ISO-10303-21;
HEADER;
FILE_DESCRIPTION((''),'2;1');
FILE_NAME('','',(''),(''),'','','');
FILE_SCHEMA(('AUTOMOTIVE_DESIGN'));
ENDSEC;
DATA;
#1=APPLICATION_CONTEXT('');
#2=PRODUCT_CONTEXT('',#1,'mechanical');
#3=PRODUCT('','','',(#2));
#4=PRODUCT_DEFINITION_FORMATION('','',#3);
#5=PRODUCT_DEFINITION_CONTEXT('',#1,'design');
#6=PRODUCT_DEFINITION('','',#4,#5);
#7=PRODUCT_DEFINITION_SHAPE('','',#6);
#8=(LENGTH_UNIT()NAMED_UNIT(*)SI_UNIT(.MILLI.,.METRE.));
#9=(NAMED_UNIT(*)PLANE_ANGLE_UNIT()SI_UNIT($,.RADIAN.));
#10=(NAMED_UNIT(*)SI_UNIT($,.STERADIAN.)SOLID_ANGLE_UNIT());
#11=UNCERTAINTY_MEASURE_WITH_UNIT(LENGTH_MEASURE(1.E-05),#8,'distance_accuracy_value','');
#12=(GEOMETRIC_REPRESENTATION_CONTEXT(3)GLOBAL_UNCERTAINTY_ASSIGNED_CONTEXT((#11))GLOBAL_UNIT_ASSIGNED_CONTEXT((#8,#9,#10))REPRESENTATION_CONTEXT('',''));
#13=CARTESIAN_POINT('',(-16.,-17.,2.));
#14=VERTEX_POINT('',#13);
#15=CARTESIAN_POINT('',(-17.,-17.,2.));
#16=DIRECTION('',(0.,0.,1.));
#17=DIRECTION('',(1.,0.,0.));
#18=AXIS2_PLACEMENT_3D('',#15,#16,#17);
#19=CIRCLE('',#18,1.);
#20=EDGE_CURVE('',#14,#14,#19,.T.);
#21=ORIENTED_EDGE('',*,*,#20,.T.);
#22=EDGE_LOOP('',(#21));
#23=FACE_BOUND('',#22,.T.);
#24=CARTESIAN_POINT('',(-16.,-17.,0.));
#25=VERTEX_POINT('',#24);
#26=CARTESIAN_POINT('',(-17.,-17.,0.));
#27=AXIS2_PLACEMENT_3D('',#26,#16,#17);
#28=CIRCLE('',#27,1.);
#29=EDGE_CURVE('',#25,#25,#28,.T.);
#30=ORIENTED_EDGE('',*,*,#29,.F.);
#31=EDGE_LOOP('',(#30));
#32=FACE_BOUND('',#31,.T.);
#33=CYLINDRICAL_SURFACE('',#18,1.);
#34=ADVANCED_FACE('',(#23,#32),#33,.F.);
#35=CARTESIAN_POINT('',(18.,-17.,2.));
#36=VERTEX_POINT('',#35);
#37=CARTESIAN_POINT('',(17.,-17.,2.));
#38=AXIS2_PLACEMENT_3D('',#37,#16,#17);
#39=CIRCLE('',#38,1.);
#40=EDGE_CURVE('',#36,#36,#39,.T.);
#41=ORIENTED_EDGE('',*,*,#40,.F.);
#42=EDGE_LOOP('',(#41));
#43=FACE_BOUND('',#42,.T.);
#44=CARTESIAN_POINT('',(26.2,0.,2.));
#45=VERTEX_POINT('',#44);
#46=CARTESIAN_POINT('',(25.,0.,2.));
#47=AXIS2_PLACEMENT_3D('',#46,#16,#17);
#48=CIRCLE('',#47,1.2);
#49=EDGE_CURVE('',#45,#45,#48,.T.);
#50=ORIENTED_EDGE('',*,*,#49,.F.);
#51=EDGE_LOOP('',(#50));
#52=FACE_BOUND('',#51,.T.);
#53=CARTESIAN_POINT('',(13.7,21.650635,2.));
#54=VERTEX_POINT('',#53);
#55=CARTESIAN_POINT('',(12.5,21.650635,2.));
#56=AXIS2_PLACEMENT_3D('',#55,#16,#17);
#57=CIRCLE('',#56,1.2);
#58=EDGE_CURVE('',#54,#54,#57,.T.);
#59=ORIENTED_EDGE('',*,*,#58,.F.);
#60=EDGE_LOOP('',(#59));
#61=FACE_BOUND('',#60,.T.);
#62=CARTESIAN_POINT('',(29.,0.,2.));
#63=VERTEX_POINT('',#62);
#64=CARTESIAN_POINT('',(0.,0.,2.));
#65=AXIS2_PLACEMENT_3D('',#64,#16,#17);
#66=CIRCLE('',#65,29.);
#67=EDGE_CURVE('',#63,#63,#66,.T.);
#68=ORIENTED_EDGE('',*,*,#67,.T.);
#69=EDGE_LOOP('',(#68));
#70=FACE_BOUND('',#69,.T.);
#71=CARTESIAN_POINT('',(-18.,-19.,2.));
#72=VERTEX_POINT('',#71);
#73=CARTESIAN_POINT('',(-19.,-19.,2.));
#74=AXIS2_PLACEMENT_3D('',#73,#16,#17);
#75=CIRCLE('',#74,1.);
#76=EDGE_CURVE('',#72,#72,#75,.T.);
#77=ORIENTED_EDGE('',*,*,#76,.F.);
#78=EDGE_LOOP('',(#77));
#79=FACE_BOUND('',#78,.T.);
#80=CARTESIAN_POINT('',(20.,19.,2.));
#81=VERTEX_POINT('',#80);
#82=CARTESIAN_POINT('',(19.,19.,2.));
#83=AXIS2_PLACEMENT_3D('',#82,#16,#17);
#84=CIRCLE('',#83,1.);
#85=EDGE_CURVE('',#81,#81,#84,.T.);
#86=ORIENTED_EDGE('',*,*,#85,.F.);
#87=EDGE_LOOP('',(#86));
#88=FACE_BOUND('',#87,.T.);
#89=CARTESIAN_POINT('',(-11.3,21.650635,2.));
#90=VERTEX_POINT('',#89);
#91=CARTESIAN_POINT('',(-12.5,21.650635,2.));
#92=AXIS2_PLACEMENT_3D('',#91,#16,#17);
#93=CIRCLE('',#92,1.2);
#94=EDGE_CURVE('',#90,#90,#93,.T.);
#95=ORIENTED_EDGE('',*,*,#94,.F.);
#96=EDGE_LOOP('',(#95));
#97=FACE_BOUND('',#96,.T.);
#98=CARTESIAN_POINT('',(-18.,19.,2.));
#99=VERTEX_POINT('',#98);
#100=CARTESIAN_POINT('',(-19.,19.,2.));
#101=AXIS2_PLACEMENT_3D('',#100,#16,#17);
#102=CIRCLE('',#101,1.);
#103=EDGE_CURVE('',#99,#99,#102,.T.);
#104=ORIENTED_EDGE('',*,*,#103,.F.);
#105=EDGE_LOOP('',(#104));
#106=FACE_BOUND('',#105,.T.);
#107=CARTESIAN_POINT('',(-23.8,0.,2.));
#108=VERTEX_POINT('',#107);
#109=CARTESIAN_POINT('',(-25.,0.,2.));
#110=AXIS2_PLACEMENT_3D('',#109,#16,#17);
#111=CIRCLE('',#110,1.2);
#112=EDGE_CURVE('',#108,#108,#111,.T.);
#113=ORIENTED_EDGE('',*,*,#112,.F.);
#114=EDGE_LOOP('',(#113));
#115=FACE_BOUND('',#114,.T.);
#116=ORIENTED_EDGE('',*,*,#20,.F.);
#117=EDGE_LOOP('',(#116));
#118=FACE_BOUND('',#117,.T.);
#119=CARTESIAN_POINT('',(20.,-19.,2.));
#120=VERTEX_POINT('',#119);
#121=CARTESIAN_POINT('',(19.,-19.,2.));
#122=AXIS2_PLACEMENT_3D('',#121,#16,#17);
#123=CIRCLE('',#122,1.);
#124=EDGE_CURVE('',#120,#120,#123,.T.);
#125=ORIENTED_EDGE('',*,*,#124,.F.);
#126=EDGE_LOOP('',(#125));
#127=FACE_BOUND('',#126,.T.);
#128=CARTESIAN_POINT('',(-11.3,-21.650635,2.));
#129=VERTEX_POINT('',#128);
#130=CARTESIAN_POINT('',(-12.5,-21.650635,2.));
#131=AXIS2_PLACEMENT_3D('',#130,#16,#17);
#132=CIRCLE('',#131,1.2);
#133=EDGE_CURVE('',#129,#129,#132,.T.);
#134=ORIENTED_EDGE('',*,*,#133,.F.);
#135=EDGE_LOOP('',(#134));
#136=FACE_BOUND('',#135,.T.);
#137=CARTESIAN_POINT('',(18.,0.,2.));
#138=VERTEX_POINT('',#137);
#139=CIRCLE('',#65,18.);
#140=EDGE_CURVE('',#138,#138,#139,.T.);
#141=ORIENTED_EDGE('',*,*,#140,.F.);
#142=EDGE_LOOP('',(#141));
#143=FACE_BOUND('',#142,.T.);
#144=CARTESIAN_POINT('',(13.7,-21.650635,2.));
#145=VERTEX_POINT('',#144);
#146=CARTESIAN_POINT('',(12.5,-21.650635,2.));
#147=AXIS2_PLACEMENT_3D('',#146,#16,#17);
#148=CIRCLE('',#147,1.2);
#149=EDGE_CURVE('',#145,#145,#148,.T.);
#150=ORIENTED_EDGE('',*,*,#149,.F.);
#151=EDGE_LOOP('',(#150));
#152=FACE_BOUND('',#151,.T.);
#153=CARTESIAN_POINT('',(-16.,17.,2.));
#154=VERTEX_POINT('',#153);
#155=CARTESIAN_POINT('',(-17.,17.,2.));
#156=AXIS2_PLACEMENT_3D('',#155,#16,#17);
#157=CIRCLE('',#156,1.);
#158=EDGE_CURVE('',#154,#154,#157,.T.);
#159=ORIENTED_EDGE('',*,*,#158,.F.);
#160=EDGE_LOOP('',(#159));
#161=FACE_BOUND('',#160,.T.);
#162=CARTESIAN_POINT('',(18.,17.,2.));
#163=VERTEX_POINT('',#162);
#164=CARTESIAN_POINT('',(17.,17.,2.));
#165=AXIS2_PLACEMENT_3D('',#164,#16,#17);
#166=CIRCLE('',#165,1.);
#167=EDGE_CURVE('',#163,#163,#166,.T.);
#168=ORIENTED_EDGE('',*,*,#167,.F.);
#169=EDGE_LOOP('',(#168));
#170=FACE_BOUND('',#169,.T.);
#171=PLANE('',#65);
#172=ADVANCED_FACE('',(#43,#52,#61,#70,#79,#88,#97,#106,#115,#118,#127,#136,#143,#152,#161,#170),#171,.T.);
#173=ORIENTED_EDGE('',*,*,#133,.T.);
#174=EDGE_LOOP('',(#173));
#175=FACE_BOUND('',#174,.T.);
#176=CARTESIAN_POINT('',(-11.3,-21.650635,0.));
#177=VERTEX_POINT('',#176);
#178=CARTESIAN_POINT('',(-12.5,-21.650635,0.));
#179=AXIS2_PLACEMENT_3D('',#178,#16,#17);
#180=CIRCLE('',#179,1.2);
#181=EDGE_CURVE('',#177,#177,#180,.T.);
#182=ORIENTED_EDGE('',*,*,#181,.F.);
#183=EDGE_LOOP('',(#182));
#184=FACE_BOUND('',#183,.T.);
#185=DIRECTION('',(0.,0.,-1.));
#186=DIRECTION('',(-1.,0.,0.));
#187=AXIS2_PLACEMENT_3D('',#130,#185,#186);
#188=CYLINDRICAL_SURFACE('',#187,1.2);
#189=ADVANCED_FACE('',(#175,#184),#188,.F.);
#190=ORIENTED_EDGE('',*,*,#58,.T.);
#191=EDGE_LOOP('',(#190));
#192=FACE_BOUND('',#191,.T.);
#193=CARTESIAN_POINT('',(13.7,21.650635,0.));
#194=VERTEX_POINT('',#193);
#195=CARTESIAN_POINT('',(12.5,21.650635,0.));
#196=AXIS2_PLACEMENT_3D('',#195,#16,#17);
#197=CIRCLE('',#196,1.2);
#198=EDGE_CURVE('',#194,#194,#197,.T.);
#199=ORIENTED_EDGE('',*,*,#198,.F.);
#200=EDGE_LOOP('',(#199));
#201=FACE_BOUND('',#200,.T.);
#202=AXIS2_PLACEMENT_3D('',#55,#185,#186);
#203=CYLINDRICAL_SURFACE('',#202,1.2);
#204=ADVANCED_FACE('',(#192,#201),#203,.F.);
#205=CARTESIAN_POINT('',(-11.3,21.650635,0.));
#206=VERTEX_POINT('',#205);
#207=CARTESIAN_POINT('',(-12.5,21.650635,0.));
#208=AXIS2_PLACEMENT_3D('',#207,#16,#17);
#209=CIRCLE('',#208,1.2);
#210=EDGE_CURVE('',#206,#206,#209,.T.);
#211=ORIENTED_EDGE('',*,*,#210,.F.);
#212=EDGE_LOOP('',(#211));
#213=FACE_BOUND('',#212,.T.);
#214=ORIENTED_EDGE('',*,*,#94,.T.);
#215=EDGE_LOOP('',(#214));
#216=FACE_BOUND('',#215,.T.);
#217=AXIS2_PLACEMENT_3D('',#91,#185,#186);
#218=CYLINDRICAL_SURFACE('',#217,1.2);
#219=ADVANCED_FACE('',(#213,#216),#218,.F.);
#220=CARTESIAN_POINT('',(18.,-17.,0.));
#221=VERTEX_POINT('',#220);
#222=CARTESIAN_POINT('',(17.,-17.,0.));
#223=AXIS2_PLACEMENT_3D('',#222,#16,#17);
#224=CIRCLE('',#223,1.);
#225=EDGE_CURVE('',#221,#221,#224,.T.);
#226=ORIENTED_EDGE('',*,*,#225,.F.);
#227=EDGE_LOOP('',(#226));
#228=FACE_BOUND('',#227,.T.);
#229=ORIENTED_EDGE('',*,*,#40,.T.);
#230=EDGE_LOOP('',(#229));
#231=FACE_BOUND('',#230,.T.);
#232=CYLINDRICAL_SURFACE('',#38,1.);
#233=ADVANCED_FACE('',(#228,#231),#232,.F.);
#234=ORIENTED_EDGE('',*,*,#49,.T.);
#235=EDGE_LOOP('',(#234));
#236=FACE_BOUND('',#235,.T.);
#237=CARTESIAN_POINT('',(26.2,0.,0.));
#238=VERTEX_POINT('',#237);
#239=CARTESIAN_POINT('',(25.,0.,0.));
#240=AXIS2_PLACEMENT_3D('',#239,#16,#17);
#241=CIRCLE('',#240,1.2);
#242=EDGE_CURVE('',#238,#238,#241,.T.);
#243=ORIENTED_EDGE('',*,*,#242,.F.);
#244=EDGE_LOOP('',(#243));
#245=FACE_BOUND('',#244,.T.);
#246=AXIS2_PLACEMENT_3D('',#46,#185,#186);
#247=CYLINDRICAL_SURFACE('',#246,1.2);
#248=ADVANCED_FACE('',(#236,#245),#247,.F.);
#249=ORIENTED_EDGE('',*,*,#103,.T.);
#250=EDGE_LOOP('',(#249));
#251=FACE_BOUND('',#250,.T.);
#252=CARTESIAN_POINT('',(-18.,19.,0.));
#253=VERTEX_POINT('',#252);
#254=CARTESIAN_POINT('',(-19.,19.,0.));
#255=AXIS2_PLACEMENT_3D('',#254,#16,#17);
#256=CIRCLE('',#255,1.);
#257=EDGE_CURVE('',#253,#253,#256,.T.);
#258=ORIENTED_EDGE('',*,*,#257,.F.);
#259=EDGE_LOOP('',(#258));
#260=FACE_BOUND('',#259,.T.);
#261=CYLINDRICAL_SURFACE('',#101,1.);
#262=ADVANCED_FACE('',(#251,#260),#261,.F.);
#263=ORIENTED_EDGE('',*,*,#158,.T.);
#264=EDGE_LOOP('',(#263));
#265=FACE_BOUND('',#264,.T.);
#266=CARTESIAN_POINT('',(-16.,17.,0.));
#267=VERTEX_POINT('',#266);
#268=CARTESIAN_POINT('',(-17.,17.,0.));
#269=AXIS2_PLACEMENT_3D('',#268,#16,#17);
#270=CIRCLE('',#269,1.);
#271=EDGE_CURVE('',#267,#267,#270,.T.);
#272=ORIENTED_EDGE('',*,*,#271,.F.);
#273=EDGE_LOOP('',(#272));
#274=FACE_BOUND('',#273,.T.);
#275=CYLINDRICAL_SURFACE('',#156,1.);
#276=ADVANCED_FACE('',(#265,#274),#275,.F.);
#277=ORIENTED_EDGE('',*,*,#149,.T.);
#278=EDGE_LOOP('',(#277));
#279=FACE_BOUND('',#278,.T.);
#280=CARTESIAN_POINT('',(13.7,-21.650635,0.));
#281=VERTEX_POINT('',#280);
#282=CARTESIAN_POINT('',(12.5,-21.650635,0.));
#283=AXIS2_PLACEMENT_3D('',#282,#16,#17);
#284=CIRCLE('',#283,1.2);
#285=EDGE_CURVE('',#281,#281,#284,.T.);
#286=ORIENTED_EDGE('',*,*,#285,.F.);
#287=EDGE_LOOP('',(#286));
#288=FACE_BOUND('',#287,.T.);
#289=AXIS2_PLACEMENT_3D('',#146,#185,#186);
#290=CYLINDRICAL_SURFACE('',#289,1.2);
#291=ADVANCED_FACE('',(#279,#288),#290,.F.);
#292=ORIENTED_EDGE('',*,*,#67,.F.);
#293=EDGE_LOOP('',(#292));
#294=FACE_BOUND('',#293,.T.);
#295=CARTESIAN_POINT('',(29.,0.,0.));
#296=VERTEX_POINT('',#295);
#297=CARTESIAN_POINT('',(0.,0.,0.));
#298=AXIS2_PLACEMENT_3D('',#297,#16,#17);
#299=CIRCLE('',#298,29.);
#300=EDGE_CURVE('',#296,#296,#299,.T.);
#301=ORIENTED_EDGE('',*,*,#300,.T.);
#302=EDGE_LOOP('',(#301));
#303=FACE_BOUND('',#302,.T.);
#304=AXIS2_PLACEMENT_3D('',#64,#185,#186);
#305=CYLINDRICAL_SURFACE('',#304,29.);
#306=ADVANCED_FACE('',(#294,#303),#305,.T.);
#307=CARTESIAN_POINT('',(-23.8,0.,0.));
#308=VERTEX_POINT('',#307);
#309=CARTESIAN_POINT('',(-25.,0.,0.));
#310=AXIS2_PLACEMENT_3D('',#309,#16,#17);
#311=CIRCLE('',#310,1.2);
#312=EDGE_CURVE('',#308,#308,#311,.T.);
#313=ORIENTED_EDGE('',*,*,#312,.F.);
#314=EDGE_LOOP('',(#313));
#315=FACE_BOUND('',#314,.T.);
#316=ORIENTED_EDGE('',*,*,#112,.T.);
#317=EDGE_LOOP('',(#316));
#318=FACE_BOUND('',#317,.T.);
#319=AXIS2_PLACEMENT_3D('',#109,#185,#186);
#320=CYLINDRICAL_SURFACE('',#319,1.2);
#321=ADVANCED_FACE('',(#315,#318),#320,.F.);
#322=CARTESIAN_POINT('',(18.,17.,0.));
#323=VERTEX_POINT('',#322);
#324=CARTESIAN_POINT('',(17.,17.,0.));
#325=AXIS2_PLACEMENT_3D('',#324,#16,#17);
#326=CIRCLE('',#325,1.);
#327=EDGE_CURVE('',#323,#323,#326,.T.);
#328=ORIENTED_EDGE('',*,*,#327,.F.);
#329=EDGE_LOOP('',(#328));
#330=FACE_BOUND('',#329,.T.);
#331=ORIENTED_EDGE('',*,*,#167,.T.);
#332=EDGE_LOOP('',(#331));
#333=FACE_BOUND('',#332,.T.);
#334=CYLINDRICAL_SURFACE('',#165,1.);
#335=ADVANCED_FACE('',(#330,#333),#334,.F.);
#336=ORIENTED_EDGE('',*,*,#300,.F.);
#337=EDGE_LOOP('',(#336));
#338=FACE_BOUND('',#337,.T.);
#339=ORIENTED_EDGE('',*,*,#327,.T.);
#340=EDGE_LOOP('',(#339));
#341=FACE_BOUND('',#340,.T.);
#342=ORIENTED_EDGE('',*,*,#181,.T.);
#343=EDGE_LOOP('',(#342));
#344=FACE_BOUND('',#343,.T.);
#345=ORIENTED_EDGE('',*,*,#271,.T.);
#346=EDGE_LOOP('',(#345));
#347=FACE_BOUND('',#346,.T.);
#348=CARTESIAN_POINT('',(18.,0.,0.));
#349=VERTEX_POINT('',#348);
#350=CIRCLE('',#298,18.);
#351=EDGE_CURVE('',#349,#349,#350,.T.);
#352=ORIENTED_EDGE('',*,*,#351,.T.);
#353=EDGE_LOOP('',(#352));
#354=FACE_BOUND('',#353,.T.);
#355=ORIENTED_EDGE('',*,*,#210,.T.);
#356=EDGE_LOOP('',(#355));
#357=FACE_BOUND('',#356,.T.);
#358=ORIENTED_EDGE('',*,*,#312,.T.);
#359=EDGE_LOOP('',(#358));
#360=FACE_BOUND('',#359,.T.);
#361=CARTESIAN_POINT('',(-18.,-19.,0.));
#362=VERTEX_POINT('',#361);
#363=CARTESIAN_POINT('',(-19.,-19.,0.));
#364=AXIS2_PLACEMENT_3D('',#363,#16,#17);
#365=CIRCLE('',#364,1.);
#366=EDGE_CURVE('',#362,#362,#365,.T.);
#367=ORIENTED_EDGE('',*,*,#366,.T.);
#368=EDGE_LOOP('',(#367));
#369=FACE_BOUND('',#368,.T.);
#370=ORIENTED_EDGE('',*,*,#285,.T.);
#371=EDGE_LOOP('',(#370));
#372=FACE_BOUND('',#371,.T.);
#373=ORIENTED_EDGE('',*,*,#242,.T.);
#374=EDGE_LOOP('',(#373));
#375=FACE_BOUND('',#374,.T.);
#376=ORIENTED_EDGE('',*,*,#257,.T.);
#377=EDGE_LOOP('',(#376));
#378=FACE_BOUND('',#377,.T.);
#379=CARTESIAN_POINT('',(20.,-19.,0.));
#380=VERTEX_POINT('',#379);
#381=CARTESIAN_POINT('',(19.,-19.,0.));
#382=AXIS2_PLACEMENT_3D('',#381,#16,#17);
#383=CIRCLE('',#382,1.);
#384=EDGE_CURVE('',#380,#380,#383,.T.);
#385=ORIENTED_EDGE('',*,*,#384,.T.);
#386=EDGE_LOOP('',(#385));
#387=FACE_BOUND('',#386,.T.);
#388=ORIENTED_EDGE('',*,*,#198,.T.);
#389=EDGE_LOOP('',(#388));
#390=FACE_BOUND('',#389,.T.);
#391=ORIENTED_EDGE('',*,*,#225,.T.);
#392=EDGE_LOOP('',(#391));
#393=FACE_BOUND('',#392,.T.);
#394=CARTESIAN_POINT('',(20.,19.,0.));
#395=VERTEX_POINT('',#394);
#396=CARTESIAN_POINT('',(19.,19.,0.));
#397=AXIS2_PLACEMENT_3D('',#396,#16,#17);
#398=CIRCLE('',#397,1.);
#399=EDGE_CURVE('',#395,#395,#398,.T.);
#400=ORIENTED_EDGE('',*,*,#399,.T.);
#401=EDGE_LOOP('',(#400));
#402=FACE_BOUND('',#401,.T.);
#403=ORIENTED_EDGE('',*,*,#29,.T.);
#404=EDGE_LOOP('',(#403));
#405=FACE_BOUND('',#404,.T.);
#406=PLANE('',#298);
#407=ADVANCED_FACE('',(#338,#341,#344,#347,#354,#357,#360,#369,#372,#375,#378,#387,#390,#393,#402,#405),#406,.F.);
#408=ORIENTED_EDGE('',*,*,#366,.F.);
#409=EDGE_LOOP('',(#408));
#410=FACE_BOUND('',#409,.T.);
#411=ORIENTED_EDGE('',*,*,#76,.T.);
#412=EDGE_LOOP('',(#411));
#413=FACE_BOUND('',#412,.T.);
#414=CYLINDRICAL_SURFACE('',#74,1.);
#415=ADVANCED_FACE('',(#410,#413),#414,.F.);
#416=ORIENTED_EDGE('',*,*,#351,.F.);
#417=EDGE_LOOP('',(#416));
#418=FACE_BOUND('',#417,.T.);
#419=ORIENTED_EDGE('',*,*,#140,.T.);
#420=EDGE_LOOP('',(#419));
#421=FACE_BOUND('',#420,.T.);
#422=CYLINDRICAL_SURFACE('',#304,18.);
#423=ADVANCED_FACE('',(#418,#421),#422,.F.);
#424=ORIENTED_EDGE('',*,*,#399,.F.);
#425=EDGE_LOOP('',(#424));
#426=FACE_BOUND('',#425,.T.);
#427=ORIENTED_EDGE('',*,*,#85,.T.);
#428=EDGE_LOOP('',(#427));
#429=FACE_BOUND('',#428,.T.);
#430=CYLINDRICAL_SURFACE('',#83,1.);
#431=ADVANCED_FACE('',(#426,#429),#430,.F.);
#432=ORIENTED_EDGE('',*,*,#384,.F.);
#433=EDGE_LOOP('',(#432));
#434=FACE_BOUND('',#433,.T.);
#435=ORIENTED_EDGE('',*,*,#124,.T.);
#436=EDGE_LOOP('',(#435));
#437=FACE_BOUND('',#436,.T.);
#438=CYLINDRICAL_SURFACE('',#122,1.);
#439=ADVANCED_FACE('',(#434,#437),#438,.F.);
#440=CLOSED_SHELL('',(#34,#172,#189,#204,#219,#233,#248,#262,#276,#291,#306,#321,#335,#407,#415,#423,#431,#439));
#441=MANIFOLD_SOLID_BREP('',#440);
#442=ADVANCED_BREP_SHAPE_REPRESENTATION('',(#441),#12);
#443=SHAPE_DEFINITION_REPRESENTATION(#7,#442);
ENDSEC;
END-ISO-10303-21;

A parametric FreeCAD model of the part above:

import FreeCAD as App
import Part
import Sketcher
from FreeCAD import Vector

doc = App.newDocument("Part")
params = doc.addObject("Spreadsheet::Sheet", "Params")
for row, (alias, value) in enumerate([
    ("sketch1_diameter", "58 mm"),
    ("sketch1_diameter2", "36 mm"),
    ("pad1_length", "2 mm"),
    ("sketch2_diameter", "2 mm"),
    ("hole_diameter", "2 mm"),
    ("sketch3_diameter", "2.4 mm"),
], start=1):
    params.set(f"A{row}", alias)
    params.set(f"B{row}", "=" + value)
    params.setAlias(f"B{row}", alias)

body = doc.addObject("PartDesign::Body", "Body")

sketch1 = body.newObject("Sketcher::SketchObject", "Sketch")
sketch1.AttachmentSupport = (doc.getObject("XY_Plane"), [""])
sketch1.MapMode = "FlatFace"
sketch1.addGeometry(Part.Circle(Vector(0, 0, 0), Vector(0, 0, 1), 29), False)
sketch1.addGeometry(Part.Circle(Vector(0, 0, 0), Vector(0, 0, 1), 18), False)
sketch1.addConstraint(Sketcher.Constraint("Coincident", 0, 3, -1, 1))
sketch1.addConstraint(Sketcher.Constraint("Coincident", 1, 3, -1, 1))
sketch1.addConstraint(Sketcher.Constraint("Diameter", 0, 58.0))
sketch1.addConstraint(Sketcher.Constraint("Diameter", 1, 36.0))
sketch1.setExpression("Constraints[2]", "Params.sketch1_diameter")
sketch1.setExpression("Constraints[3]", "Params.sketch1_diameter2")
pad1 = body.newObject("PartDesign::Pad", "Pad")
pad1.Profile = sketch1
pad1.setExpression("Length", "Params.pad1_length")

sketch2 = body.newObject("Sketcher::SketchObject", "Sketch001")
sketch2.AttachmentSupport = (doc.getObject("XY_Plane"), [""])
sketch2.MapMode = "FlatFace"
sketch2.AttachmentOffset = App.Placement(Vector(0, 0, 2), App.Rotation())
sketch2.addGeometry(Part.Circle(Vector(-19, 19, 0), Vector(0, 0, 1), 1), False)
sketch2.addGeometry(Part.Circle(Vector(-17, 17, 0), Vector(0, 0, 1), 1), False)
sketch2.addGeometry(Part.Circle(Vector(17, 17, 0), Vector(0, 0, 1), 1), False)
sketch2.addGeometry(Part.Circle(Vector(19, 19, 0), Vector(0, 0, 1), 1), False)
sketch2.addGeometry(Part.Circle(Vector(17, -17, 0), Vector(0, 0, 1), 1), False)
sketch2.addGeometry(Part.Circle(Vector(19, -19, 0), Vector(0, 0, 1), 1), False)
sketch2.addGeometry(Part.Circle(Vector(-19, -19, 0), Vector(0, 0, 1), 1), False)
sketch2.addGeometry(Part.Circle(Vector(-17, -17, 0), Vector(0, 0, 1), 1), False)
sketch2.addConstraint(Sketcher.Constraint("Equal", 0, 1))
sketch2.addConstraint(Sketcher.Constraint("Equal", 1, 2))
sketch2.addConstraint(Sketcher.Constraint("Equal", 2, 3))
sketch2.addConstraint(Sketcher.Constraint("Equal", 3, 4))
sketch2.addConstraint(Sketcher.Constraint("Equal", 4, 5))
sketch2.addConstraint(Sketcher.Constraint("Equal", 5, 6))
sketch2.addConstraint(Sketcher.Constraint("Equal", 6, 7))
sketch2.addConstraint(Sketcher.Constraint("Symmetric", 1, 3, 4, 3, -1, 1))
sketch2.addConstraint(Sketcher.Constraint("Symmetric", 0, 3, 5, 3, -1, 1))
sketch2.addConstraint(Sketcher.Constraint("Symmetric", 3, 3, 6, 3, -1, 1))
sketch2.addConstraint(Sketcher.Constraint("Symmetric", 2, 3, 7, 3, -1, 1))
sketch2.addConstraint(Sketcher.Constraint("Symmetric", 1, 3, 2, 3, -2))
sketch2.addConstraint(Sketcher.Constraint("Symmetric", 0, 3, 3, 3, -2))
sketch2.addConstraint(Sketcher.Constraint("Diameter", 0, 2.0))
sketch2.addConstraint(Sketcher.Constraint("DistanceX", 0, 3, -1, 1, 19.0))
sketch2.addConstraint(Sketcher.Constraint("DistanceY", -1, 1, 0, 3, 19.0))
sketch2.addConstraint(Sketcher.Constraint("DistanceX", 1, 3, -1, 1, 17.0))
sketch2.addConstraint(Sketcher.Constraint("DistanceY", -1, 1, 1, 3, 17.0))
sketch2.setExpression("Constraints[13]", "Params.sketch2_diameter")
doc.recompute()
hole = body.newObject("PartDesign::Hole", "Hole")
hole.Profile = sketch2
hole.ThreadType = "None"
hole.setExpression("Diameter", "Params.hole_diameter")
hole.DepthType = "ThroughAll"

sketch3 = body.newObject("Sketcher::SketchObject", "Sketch002")
sketch3.AttachmentSupport = (doc.getObject("XY_Plane"), [""])
sketch3.MapMode = "FlatFace"
sketch3.addGeometry(Part.Circle(Vector(-12.5, 21.650635, 0), Vector(0, 0, 1), 1.2), False)
sketch3.addGeometry(Part.Circle(Vector(-25, 0, 0), Vector(0, 0, 1), 1.2), False)
sketch3.addGeometry(Part.Circle(Vector(25, 0, 0), Vector(0, 0, 1), 1.2), False)
sketch3.addGeometry(Part.Circle(Vector(-12.5, -21.650635, 0), Vector(0, 0, 1), 1.2), False)
sketch3.addGeometry(Part.Circle(Vector(12.5, 21.650635, 0), Vector(0, 0, 1), 1.2), False)
sketch3.addGeometry(Part.Circle(Vector(12.5, -21.650635, 0), Vector(0, 0, 1), 1.2), False)
sketch3.addConstraint(Sketcher.Constraint("Equal", 0, 1))
sketch3.addConstraint(Sketcher.Constraint("Equal", 1, 2))
sketch3.addConstraint(Sketcher.Constraint("Equal", 2, 3))
sketch3.addConstraint(Sketcher.Constraint("Equal", 3, 4))
sketch3.addConstraint(Sketcher.Constraint("Equal", 4, 5))
sketch3.addConstraint(Sketcher.Constraint("Symmetric", 1, 3, 2, 3, -1, 1))
sketch3.addConstraint(Sketcher.Constraint("Symmetric", 3, 3, 4, 3, -1, 1))
sketch3.addConstraint(Sketcher.Constraint("Symmetric", 0, 3, 5, 3, -1, 1))
sketch3.addConstraint(Sketcher.Constraint("Symmetric", 0, 3, 4, 3, -2))
sketch3.addConstraint(Sketcher.Constraint("PointOnObject", 1, 3, -1))
sketch3.addConstraint(Sketcher.Constraint("Diameter", 0, 2.4))
sketch3.addConstraint(Sketcher.Constraint("DistanceX", 1, 3, -1, 1, 25.0))
sketch3.addConstraint(Sketcher.Constraint("DistanceX", 0, 3, 4, 3, 25.0))
sketch3.addConstraint(Sketcher.Constraint("DistanceY", 3, 3, 0, 3, 43.30127))
sketch3.setExpression("Constraints[10]", "Params.sketch3_diameter")
pocket1 = body.newObject("PartDesign::Pocket", "Pocket")
pocket1.Profile = sketch3
pocket1.Type = "ThroughAll"
pocket1.Reversed = True

doc.recompute()
